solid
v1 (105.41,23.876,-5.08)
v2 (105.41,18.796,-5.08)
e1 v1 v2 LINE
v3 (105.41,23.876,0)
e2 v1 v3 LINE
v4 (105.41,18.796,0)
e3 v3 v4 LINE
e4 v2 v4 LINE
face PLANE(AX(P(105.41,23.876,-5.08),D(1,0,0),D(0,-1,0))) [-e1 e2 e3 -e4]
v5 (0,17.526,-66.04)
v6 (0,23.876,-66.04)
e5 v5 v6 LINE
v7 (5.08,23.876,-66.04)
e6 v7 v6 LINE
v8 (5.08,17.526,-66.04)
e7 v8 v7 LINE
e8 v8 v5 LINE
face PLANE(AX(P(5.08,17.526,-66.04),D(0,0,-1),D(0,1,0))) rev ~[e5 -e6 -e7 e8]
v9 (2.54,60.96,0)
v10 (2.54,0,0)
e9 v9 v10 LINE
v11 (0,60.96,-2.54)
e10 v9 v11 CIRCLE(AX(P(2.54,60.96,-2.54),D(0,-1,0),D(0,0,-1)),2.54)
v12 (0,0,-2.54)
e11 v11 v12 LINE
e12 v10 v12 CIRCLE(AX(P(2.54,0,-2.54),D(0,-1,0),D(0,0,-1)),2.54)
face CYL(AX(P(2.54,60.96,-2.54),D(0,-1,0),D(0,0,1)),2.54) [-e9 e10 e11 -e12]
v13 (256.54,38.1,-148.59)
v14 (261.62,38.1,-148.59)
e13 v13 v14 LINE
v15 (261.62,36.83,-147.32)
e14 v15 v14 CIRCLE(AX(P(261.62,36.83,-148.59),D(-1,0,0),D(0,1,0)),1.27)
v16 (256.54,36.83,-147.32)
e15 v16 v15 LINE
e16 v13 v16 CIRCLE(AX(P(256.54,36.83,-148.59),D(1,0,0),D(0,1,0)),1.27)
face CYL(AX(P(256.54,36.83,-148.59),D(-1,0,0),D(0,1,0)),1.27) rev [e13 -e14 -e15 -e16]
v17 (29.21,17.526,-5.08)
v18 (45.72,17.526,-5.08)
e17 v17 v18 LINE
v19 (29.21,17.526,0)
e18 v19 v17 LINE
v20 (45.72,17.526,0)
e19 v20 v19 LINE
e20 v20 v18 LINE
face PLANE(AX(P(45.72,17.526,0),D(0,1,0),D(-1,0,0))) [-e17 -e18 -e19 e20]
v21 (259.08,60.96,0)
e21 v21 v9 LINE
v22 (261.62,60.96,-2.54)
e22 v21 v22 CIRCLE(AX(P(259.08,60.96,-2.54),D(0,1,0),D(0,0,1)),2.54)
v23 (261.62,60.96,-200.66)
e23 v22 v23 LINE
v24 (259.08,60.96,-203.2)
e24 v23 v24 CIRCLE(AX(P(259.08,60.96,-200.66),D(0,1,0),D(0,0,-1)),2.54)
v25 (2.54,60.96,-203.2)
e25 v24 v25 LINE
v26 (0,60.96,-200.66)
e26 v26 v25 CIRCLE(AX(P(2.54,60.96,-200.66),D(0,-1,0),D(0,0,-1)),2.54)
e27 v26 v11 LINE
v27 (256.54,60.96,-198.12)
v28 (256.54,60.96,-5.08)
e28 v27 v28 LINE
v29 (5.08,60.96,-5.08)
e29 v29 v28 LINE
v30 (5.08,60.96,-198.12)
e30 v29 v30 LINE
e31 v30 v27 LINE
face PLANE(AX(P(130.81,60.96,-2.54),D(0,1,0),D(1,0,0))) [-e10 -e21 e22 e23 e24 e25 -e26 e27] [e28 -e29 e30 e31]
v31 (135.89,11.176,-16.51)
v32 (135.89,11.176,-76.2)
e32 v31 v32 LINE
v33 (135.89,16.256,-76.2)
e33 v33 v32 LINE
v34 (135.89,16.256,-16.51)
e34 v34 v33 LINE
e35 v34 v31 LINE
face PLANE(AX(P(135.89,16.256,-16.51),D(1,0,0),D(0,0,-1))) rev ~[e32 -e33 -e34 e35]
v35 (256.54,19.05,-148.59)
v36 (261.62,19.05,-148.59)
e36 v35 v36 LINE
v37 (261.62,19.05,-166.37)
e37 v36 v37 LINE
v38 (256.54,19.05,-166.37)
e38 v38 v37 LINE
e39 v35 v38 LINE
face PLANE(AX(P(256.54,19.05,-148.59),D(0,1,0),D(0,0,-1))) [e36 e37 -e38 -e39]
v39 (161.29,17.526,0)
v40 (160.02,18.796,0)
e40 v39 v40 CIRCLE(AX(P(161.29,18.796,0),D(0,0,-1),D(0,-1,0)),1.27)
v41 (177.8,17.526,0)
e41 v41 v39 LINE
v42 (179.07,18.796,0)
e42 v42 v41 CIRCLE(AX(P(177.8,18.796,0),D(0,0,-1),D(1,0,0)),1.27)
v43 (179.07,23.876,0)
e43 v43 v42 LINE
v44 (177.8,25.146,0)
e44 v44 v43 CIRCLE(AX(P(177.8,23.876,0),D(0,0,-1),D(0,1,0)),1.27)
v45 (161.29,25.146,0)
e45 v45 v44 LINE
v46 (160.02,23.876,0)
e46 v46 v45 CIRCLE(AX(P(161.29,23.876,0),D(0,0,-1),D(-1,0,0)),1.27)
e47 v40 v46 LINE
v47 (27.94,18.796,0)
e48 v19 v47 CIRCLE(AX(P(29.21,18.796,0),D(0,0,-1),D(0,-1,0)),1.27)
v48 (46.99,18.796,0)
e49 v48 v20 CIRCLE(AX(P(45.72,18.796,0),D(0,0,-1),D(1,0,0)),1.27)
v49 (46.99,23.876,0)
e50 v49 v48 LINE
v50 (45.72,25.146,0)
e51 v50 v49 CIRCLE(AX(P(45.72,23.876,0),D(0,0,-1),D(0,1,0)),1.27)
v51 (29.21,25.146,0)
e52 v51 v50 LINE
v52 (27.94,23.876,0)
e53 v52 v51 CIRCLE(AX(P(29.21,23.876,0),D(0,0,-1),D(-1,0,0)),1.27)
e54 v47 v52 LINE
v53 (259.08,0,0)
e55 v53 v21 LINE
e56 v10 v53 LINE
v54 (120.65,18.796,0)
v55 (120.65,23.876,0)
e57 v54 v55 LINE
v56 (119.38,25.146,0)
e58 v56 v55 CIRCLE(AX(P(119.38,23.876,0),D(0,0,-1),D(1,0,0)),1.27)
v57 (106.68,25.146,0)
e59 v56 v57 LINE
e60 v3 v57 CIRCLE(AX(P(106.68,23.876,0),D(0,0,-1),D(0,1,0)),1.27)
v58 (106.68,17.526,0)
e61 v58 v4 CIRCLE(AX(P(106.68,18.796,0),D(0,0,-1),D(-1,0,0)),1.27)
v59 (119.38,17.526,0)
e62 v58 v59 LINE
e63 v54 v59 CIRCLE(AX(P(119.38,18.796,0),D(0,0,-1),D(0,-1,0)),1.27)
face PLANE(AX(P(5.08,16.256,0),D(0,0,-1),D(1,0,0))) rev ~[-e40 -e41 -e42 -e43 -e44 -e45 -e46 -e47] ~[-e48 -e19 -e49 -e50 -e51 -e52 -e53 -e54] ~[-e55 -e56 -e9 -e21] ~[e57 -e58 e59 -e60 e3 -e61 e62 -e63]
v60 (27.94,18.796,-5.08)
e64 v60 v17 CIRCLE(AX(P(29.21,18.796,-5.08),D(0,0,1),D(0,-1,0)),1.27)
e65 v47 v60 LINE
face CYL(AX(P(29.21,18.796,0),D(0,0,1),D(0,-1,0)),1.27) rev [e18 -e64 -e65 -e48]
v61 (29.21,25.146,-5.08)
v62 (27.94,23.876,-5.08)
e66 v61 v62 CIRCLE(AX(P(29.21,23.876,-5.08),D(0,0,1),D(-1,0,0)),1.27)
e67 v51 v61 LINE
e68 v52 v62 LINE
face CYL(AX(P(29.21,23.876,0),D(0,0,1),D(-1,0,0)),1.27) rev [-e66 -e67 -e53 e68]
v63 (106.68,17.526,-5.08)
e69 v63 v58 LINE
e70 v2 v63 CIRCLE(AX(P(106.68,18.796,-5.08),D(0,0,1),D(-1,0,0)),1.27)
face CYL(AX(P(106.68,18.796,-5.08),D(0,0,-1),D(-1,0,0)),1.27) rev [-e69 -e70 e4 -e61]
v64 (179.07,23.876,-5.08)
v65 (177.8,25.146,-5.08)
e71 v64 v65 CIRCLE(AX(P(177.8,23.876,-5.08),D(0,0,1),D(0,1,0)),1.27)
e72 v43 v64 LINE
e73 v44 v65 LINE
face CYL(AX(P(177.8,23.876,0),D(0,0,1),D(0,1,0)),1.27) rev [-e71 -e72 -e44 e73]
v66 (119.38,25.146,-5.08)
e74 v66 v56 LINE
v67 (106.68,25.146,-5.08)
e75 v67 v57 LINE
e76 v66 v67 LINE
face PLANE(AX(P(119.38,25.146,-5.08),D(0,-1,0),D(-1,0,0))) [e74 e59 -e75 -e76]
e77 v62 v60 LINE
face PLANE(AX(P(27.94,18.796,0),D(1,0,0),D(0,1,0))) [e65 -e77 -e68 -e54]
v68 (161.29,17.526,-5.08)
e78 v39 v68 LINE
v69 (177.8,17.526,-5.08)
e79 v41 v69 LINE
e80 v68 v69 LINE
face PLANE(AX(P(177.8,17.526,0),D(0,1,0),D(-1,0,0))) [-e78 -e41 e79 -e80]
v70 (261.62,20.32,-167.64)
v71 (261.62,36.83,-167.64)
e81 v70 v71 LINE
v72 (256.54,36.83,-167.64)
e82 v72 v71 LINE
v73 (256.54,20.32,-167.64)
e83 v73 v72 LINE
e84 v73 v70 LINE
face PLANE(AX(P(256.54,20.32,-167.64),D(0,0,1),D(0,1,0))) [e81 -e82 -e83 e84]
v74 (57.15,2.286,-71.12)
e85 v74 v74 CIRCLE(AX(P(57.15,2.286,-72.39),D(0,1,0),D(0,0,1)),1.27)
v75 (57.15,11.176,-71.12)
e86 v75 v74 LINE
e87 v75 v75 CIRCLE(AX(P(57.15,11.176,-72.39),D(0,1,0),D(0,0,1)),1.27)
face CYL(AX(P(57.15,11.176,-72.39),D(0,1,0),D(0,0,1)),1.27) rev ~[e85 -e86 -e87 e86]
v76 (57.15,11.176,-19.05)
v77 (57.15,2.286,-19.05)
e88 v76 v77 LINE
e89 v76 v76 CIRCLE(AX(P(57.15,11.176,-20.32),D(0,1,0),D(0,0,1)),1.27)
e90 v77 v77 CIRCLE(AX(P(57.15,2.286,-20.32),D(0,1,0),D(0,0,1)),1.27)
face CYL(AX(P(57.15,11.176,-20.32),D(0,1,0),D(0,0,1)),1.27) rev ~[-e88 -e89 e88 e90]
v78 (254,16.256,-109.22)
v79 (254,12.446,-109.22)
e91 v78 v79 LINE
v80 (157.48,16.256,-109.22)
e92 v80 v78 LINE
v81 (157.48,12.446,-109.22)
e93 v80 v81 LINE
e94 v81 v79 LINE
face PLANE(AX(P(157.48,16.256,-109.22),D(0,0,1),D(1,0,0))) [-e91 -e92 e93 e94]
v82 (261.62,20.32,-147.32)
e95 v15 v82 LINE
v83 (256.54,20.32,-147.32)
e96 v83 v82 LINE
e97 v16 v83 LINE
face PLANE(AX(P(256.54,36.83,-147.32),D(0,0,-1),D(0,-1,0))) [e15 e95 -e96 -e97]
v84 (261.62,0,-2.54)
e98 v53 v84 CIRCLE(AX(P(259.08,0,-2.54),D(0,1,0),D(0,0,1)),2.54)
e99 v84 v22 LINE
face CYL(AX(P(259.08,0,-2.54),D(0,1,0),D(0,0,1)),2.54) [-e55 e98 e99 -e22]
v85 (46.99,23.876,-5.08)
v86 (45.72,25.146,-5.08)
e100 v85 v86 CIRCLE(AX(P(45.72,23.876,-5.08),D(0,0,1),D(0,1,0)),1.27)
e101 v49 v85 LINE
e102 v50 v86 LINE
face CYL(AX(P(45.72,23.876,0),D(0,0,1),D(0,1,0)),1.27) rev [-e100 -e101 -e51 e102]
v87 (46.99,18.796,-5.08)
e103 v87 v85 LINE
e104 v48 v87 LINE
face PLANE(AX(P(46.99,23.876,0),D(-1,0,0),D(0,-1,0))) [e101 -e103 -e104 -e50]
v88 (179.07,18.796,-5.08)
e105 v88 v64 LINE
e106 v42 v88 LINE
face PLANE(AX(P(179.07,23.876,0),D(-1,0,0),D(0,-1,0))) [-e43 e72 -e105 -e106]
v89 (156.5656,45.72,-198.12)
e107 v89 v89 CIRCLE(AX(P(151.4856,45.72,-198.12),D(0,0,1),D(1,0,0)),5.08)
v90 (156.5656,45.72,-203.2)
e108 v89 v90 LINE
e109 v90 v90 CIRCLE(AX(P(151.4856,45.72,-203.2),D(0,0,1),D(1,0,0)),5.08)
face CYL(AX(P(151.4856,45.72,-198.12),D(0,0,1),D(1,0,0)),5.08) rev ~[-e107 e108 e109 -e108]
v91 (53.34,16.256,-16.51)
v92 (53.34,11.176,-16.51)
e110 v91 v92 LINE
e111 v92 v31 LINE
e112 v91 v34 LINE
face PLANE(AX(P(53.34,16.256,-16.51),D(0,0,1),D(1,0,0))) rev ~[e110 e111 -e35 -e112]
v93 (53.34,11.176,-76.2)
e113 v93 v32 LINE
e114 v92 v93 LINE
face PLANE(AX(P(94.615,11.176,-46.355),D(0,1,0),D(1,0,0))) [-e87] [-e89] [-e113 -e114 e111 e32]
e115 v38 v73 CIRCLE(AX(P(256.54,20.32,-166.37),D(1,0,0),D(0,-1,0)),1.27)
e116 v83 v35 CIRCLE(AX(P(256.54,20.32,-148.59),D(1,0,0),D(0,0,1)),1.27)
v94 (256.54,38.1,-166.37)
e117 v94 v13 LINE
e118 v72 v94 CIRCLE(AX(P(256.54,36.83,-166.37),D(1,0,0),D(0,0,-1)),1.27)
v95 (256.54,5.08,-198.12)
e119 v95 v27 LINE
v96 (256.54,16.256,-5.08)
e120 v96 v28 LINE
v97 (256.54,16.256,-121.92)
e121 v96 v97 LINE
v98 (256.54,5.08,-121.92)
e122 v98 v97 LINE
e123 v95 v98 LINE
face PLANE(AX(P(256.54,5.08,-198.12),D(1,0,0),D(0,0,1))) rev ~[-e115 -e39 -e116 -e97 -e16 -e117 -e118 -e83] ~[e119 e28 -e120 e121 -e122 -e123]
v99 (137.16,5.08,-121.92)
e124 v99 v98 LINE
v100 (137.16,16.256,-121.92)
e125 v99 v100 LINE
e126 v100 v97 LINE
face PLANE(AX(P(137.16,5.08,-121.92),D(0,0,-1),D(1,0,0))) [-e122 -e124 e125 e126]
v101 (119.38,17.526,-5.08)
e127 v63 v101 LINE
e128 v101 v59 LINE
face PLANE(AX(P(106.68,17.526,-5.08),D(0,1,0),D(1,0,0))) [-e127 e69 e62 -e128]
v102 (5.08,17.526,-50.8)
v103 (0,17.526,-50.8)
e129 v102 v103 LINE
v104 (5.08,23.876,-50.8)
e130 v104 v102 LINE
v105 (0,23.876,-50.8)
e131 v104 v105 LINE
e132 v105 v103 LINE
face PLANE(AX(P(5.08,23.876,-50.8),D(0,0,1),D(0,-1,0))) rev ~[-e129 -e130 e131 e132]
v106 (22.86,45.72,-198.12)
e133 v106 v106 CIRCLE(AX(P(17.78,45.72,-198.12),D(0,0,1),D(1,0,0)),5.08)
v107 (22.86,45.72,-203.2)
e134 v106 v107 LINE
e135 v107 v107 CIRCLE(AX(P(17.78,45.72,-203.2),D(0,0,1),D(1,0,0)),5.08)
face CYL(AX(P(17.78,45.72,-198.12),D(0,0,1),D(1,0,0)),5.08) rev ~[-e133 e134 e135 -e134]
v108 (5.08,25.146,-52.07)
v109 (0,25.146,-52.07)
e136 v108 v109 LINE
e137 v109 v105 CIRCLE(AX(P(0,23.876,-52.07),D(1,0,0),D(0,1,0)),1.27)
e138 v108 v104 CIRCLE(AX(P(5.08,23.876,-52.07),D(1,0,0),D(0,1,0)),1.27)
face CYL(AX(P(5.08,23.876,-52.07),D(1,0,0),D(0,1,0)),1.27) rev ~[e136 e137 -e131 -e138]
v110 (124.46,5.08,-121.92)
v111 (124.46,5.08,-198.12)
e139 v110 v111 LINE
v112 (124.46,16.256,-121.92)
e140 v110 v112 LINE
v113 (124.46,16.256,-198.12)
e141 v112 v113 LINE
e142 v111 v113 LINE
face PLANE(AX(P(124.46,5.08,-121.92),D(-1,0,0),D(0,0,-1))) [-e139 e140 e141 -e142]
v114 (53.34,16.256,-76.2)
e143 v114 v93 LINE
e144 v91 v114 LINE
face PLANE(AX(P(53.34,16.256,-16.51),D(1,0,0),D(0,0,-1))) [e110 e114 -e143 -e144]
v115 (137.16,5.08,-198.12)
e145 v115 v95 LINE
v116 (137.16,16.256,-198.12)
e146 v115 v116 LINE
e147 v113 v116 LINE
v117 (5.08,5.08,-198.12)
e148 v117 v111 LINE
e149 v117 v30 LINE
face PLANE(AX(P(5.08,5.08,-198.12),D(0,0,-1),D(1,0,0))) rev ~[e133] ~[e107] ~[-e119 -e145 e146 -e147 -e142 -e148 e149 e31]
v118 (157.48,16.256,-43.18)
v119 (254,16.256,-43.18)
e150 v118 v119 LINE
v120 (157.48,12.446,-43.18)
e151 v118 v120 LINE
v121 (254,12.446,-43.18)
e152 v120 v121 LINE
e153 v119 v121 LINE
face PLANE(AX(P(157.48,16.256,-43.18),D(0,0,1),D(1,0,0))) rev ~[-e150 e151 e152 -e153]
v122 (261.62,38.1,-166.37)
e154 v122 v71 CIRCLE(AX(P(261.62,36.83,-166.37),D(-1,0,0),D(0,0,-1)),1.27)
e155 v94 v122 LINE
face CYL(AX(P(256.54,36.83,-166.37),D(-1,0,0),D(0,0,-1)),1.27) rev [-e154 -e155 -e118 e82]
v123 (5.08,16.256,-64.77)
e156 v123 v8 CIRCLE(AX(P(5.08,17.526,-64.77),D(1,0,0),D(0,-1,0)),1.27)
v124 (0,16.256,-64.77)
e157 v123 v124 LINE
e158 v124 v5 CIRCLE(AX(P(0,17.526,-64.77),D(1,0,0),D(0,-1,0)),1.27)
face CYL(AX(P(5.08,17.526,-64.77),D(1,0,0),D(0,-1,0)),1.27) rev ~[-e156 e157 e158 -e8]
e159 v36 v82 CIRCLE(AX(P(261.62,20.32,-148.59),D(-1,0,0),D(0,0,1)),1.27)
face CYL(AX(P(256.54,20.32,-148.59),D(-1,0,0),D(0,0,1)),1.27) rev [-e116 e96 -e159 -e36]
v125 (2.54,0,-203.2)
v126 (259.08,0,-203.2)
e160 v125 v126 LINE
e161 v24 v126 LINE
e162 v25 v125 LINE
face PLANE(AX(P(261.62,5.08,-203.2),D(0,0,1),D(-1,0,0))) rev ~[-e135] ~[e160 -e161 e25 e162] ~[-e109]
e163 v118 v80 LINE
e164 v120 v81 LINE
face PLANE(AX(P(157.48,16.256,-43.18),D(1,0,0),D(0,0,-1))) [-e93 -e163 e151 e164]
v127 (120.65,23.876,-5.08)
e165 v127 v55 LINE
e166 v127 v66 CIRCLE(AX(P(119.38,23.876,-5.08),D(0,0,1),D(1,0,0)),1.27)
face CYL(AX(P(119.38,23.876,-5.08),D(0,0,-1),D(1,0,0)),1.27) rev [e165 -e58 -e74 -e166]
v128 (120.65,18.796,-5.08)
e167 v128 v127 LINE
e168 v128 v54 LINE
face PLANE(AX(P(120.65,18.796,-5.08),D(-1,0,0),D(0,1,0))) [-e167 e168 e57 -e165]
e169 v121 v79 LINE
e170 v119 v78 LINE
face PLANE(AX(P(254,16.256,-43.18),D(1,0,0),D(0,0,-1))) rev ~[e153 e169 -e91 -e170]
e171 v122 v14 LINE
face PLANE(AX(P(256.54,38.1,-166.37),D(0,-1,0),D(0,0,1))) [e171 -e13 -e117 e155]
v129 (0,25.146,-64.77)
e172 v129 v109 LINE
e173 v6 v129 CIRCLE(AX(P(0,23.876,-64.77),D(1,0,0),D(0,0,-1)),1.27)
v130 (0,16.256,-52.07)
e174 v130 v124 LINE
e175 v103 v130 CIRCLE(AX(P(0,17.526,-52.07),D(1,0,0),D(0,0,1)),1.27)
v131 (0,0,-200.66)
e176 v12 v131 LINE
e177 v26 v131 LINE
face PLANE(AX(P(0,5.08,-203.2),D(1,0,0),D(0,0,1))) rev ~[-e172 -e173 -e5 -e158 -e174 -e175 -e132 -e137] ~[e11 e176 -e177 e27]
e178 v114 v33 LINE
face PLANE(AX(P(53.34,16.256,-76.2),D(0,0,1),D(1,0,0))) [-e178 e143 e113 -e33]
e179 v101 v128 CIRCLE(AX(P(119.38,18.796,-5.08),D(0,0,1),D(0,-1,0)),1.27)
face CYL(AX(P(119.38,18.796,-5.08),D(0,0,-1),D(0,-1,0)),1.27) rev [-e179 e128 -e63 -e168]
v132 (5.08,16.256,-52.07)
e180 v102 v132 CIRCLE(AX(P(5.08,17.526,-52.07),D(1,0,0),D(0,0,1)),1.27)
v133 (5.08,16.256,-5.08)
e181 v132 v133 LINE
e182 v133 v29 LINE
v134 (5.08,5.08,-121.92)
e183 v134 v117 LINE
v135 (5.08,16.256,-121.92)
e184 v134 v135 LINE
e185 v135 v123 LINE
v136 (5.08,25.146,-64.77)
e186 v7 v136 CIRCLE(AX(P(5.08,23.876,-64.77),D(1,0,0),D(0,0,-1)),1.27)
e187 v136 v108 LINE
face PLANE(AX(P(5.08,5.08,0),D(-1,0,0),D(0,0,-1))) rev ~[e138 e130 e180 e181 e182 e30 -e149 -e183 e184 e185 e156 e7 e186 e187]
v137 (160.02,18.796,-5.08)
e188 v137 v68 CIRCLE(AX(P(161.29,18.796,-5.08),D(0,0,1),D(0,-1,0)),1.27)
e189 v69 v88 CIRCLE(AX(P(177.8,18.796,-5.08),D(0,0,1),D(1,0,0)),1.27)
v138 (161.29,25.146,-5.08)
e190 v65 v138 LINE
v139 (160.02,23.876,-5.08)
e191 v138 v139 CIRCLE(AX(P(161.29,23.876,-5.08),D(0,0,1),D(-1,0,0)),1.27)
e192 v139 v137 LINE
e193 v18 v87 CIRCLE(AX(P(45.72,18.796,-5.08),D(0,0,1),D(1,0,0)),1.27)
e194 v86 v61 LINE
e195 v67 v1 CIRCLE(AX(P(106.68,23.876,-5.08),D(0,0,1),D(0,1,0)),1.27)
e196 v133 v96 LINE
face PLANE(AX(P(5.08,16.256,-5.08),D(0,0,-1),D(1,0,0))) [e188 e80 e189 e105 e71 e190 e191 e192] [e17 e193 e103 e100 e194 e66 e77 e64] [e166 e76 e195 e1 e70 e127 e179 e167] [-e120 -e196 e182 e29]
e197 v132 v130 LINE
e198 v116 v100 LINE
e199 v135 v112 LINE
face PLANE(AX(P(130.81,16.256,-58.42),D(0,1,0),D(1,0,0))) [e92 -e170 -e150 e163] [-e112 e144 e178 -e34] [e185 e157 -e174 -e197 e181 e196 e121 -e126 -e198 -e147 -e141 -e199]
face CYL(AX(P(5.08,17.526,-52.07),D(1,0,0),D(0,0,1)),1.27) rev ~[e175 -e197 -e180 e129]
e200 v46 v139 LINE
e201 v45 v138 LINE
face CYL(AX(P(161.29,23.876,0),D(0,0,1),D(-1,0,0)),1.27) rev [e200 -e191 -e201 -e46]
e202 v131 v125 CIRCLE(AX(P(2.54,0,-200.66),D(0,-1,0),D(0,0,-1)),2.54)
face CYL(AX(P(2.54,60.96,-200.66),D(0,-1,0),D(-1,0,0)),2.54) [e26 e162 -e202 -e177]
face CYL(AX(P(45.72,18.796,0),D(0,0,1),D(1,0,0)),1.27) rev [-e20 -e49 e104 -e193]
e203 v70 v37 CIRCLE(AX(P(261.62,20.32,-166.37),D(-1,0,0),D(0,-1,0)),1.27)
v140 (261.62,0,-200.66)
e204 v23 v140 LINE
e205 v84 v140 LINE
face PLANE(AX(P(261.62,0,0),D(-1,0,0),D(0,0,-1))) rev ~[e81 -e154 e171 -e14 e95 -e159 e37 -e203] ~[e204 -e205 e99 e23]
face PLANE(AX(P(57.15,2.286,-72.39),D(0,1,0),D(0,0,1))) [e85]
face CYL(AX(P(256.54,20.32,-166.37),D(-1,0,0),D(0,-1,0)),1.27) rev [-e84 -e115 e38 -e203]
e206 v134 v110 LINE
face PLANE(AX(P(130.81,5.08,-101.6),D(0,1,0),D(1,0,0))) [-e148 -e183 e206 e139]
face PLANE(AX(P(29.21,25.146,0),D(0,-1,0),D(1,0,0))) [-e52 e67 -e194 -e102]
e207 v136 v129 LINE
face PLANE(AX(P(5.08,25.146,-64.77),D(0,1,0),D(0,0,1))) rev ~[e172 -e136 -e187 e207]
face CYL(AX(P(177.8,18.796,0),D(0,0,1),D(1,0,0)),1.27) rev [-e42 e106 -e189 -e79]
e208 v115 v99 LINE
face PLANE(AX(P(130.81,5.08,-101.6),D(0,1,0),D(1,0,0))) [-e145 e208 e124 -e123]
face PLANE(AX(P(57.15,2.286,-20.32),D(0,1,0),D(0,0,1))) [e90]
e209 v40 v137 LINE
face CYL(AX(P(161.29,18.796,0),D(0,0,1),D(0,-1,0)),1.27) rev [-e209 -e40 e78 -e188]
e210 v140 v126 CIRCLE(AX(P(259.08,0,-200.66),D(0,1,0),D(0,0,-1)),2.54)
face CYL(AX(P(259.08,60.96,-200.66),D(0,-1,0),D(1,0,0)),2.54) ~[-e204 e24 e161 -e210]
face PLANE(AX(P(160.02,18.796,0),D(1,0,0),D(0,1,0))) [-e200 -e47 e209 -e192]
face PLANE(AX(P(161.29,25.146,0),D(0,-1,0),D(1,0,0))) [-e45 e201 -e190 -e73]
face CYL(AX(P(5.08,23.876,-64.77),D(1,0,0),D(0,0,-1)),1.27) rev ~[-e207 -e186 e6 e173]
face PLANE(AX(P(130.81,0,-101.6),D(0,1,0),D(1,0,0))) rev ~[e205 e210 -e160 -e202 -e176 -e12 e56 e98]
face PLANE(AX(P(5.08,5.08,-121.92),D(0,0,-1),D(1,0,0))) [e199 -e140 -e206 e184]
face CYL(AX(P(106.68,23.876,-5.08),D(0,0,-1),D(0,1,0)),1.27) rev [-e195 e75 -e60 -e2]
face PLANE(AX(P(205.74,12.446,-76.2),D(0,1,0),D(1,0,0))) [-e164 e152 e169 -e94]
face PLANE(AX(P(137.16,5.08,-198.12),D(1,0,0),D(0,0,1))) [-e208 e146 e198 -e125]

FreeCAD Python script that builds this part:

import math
import FreeCAD as App
import Part
import Sketcher
Q = App.Units.Quantity


def edges_at(feature, points):
    """Names of the edges that pass closest to the given points."""
    edges = feature.Shape.Edges
    near = lambda p: min(range(len(edges)), key=lambda i: edges[i].distToShape(Part.Vertex(*p))[0])
    return sorted({f"Edge{near(p) + 1}" for p in points})


def add_polygon(sketch, points):
    """Adds a closed chain of lines whose ends are joined by coincident constraints."""
    first, n = sketch.GeometryCount, len(points)
    for a, b in zip(points, points[1:] + points[:1]):
        sketch.addGeometry(Part.LineSegment(App.Vector(*a, 0), App.Vector(*b, 0)), False)
    for i in range(n):
        sketch.addConstraint(Sketcher.Constraint("Coincident", first + i, 2, first + (i + 1) % n, 1))

doc = App.newDocument("Part")
body = doc.addObject("PartDesign::Body", "Body")

sketch1 = body.newObject("Sketcher::SketchObject", "Sketch")
sketch1.AttachmentSupport = (doc.getObject("XZ_Plane"), [""])
sketch1.MapMode = "FlatFace"
add_polygon(sketch1, [(0, -203.2), (0, 0), (261.62, 0), (261.62, -203.2)])
sketch1.addConstraint(Sketcher.Constraint("Vertical", 0))
sketch1.addConstraint(Sketcher.Constraint("Horizontal", 1))
sketch1.addConstraint(Sketcher.Constraint("Vertical", 2))
sketch1.addConstraint(Sketcher.Constraint("Horizontal", 3))
sketch1.addConstraint(Sketcher.Constraint("Coincident", 0, 2, -1, 1))
sketch1.addConstraint(Sketcher.Constraint("DistanceY", 0, 1, 0, 2, Q("8 in")))
sketch1.addConstraint(Sketcher.Constraint("DistanceX", 1, 1, 1, 2, Q("10.3 in")))
pad1 = body.newObject("PartDesign::Pad", "Pad")
pad1.Profile = sketch1
pad1.Length = Q("0.2 in")
pad1.Reversed = True

sketch2 = body.newObject("Sketcher::SketchObject", "Sketch001")
sketch2.AttachmentSupport = (doc.getObject("XZ_Plane"), [""])
sketch2.MapMode = "FlatFace"
sketch2.AttachmentOffset = App.Placement(App.Vector(0, 0, -0.2 * 25.4), App.Rotation())
add_polygon(sketch2, [(0, 0), (5.08, 0), (5.08, -198.12), (256.54, -198.12), (256.54, 0), (261.62, 0), (261.62, -203.2), (0, -203.2)])
sketch2.addConstraint(Sketcher.Constraint("Horizontal", 0))
sketch2.addConstraint(Sketcher.Constraint("Vertical", 1))
sketch2.addConstraint(Sketcher.Constraint("Horizontal", 2))
sketch2.addConstraint(Sketcher.Constraint("Vertical", 3))
sketch2.addConstraint(Sketcher.Constraint("Horizontal", 4))
sketch2.addConstraint(Sketcher.Constraint("Vertical", 5))
sketch2.addConstraint(Sketcher.Constraint("Horizontal", 6))
sketch2.addConstraint(Sketcher.Constraint("Vertical", 7))
sketch2.addConstraint(Sketcher.Constraint("Coincident", 7, 2, -1, 1))
sketch2.addConstraint(Sketcher.Constraint("PointOnObject", 3, 2, -1))
sketch2.addConstraint(Sketcher.Constraint("Equal", 0, 4))
sketch2.addConstraint(Sketcher.Constraint("DistanceY", 5, 2, 5, 1, Q("8 in")))
sketch2.addConstraint(Sketcher.Constraint("DistanceX", 0, 1, 0, 2, Q("0.2 in")))
sketch2.addConstraint(Sketcher.Constraint("DistanceX", 2, 1, 2, 2, Q("9.9 in")))
sketch2.addConstraint(Sketcher.Constraint("DistanceY", 1, 2, 1, 1, Q("7.8 in")))
pad2 = body.newObject("PartDesign::Pad", "Pad001")
pad2.Profile = sketch2
pad2.Length = Q("2.2 in")
pad2.Reversed = True

sketch3 = body.newObject("Sketcher::SketchObject", "Sketch002")
sketch3.AttachmentSupport = (doc.getObject("XZ_Plane"), [""])
sketch3.MapMode = "FlatFace"
sketch3.AttachmentOffset = App.Placement(App.Vector(0, 0, -0.2 * 25.4), App.Rotation())
add_polygon(sketch3, [(124.46, -121.92), (5.08, -121.92), (5.08, -116.84), (256.54, -116.84), (256.54, -121.92), (137.16, -121.92), (137.16, -198.12), (124.46, -198.12)])
sketch3.addConstraint(Sketcher.Constraint("Horizontal", 0))
sketch3.addConstraint(Sketcher.Constraint("Vertical", 1))
sketch3.addConstraint(Sketcher.Constraint("Horizontal", 2))
sketch3.addConstraint(Sketcher.Constraint("Vertical", 3))
sketch3.addConstraint(Sketcher.Constraint("Horizontal", 4))
sketch3.addConstraint(Sketcher.Constraint("Vertical", 5))
sketch3.addConstraint(Sketcher.Constraint("Horizontal", 6))
sketch3.addConstraint(Sketcher.Constraint("Vertical", 7))
sketch3.addConstraint(Sketcher.Constraint("Horizontal", 0, 2, 3, 2))
sketch3.addConstraint(Sketcher.Constraint("Equal", 0, 4))
sketch3.addConstraint(Sketcher.Constraint("DistanceY", 5, 2, 5, 1, Q("3 in")))
sketch3.addConstraint(Sketcher.Constraint("DistanceX", 0, 2, 0, 1, Q("4.7 in")))
sketch3.addConstraint(Sketcher.Constraint("DistanceX", 2, 1, 2, 2, Q("9.9 in")))
sketch3.addConstraint(Sketcher.Constraint("DistanceY", 1, 1, 1, 2, Q("0.2 in")))
sketch3.addConstraint(Sketcher.Constraint("DistanceX", -1, 1, 0, 2, Q("0.2 in")))
sketch3.addConstraint(Sketcher.Constraint("DistanceY", 0, 2, -1, 1, Q("4.8 in")))
pad3 = body.newObject("PartDesign::Pad", "Pad002")
pad3.Profile = sketch3
pad3.Length = Q("0.44 in")
pad3.Reversed = True

sketch4 = body.newObject("Sketcher::SketchObject", "Sketch003")
sketch4.AttachmentSupport = (doc.getObject("XZ_Plane"), [""])
sketch4.MapMode = "FlatFace"
sketch4.AttachmentOffset = App.Placement(App.Vector(0, 0, -0.2 * 25.4), App.Rotation())
add_polygon(sketch4, [(5.08, -116.84), (5.08, 0), (256.54, 0), (256.54, -116.84)])
sketch4.addConstraint(Sketcher.Constraint("Vertical", 0))
sketch4.addConstraint(Sketcher.Constraint("Horizontal", 1))
sketch4.addConstraint(Sketcher.Constraint("Vertical", 2))
sketch4.addConstraint(Sketcher.Constraint("Horizontal", 3))
sketch4.addConstraint(Sketcher.Constraint("PointOnObject", 0, 2, -1))
sketch4.addConstraint(Sketcher.Constraint("DistanceX", 1, 1, 1, 2, Q("9.9 in")))
sketch4.addConstraint(Sketcher.Constraint("DistanceY", 0, 1, 0, 2, Q("4.6 in")))
sketch4.addConstraint(Sketcher.Constraint("DistanceX", -1, 1, 0, 2, Q("0.2 in")))
pad4 = body.newObject("PartDesign::Pad", "Pad003")
pad4.Profile = sketch4
pad4.Length = Q("0.44 in")
pad4.Reversed = True

sketch5 = body.newObject("Sketcher::SketchObject", "Sketch004")
sketch5.AttachmentSupport = (doc.getObject("XY_Plane"), [""])
sketch5.MapMode = "FlatFace"
sketch5.AttachmentOffset = App.Placement(App.Vector(0, 0, -7.8 * 25.4), App.Rotation())
sketch5.addGeometry(Part.Circle(App.Vector(17.78, 45.72, 0), App.Vector(0, 0, 1), 5.08), False)
sketch5.addGeometry(Part.Circle(App.Vector(151.4856, 45.72, 0), App.Vector(0, 0, 1), 5.08), False)
sketch5.addConstraint(Sketcher.Constraint("Equal", 0, 1))
sketch5.addConstraint(Sketcher.Constraint("Horizontal", 0, 3, 1, 3))
sketch5.addConstraint(Sketcher.Constraint("Diameter", 0, Q("0.4 in")))
sketch5.addConstraint(Sketcher.Constraint("DistanceX", -1, 1, 0, 3, Q("0.7 in")))
sketch5.addConstraint(Sketcher.Constraint("DistanceY", -1, 1, 0, 3, Q("1.8 in")))
sketch5.addConstraint(Sketcher.Constraint("DistanceX", -1, 1, 1, 3, Q("5.964 in")))
pocket1 = body.newObject("PartDesign::Pocket", "Pocket")
pocket1.Profile = sketch5
pocket1.Length = Q("0.44 in")

sketch6 = body.newObject("Sketcher::SketchObject", "Sketch005")
sketch6.AttachmentSupport = (doc.getObject("YZ_Plane"), [""])
sketch6.MapMode = "FlatFace"
sketch6.AttachmentOffset = App.Placement(App.Vector(0, 0, 0.2 * 25.4), App.Rotation())
sketch6.addGeometry(Part.LineSegment(App.Vector(16.256, -52.07, 0), App.Vector(16.256, -64.77, 0)), False)
sketch6.addGeometry(Part.ArcOfCircle(Part.Circle(App.Vector(17.526, -64.77, 0), App.Vector(0, 0, 1), 1.27), math.radians(180), math.radians(270)), False)
sketch6.addGeometry(Part.LineSegment(App.Vector(17.526, -66.04, 0), App.Vector(23.876, -66.04, 0)), False)
sketch6.addGeometry(Part.ArcOfCircle(Part.Circle(App.Vector(23.876, -64.77, 0), App.Vector(0, 0, 1), 1.27), math.radians(-90), math.radians(0)), False)
sketch6.addGeometry(Part.LineSegment(App.Vector(25.146, -64.77, 0), App.Vector(25.146, -52.07, 0)), False)
sketch6.addGeometry(Part.ArcOfCircle(Part.Circle(App.Vector(23.876, -52.07, 0), App.Vector(0, 0, 1), 1.27), math.radians(0), math.radians(90)), False)
sketch6.addGeometry(Part.LineSegment(App.Vector(23.876, -50.8, 0), App.Vector(17.526, -50.8, 0)), False)
sketch6.addGeometry(Part.ArcOfCircle(Part.Circle(App.Vector(17.526, -52.07, 0), App.Vector(0, 0, 1), 1.27), math.radians(90), math.radians(180)), False)
sketch6.addConstraint(Sketcher.Constraint("Tangent", 0, 2, 1, 1))
sketch6.addConstraint(Sketcher.Constraint("Tangent", 1, 2, 2, 1))
sketch6.addConstraint(Sketcher.Constraint("Tangent", 2, 2, 3, 1))
sketch6.addConstraint(Sketcher.Constraint("Tangent", 3, 2, 4, 1))
sketch6.addConstraint(Sketcher.Constraint("Tangent", 4, 2, 5, 1))
sketch6.addConstraint(Sketcher.Constraint("Tangent", 5, 2, 6, 1))
sketch6.addConstraint(Sketcher.Constraint("Tangent", 6, 2, 7, 1))
sketch6.addConstraint(Sketcher.Constraint("Tangent", 7, 2, 0, 1))
sketch6.addConstraint(Sketcher.Constraint("Vertical", 0))
sketch6.addConstraint(Sketcher.Constraint("Horizontal", 2))
sketch6.addConstraint(Sketcher.Constraint("Vertical", 4))
sketch6.addConstraint(Sketcher.Constraint("Horizontal", 6))
sketch6.addConstraint(Sketcher.Constraint("Equal", 1, 3))
sketch6.addConstraint(Sketcher.Constraint("Equal", 3, 5))
sketch6.addConstraint(Sketcher.Constraint("Equal", 5, 7))
sketch6.addConstraint(Sketcher.Constraint("Radius", 1, Q("0.05 in")))
sketch6.addConstraint(Sketcher.Constraint("DistanceY", 0, 2, 0, 1, Q("0.5 in")))
sketch6.addConstraint(Sketcher.Constraint("DistanceY", 5, 2, -1, 1, Q("2 in")))
sketch6.addConstraint(Sketcher.Constraint("DistanceX", 2, 1, 2, 2, Q("0.25 in")))
sketch6.addConstraint(Sketcher.Constraint("DistanceX", -1, 1, 1, 3, Q("0.69 in")))
pocket2 = body.newObject("PartDesign::Pocket", "Pocket001")
pocket2.Profile = sketch6
pocket2.Length = Q("0.44 in")

sketch7 = body.newObject("Sketcher::SketchObject", "Sketch006")
sketch7.AttachmentSupport = (doc.getObject("XZ_Plane"), [""])
sketch7.MapMode = "FlatFace"
sketch7.AttachmentOffset = App.Placement(App.Vector(0, 0, -0.64 * 25.4), App.Rotation())
add_polygon(sketch7, [(53.34, -76.2), (53.34, -16.51), (135.89, -16.51), (135.89, -76.2)])
sketch7.addConstraint(Sketcher.Constraint("Vertical", 0))
sketch7.addConstraint(Sketcher.Constraint("Horizontal", 1))
sketch7.addConstraint(Sketcher.Constraint("Vertical", 2))
sketch7.addConstraint(Sketcher.Constraint("Horizontal", 3))
sketch7.addConstraint(Sketcher.Constraint("DistanceY", 2, 2, -1, 1, Q("3 in")))
sketch7.addConstraint(Sketcher.Constraint("DistanceX", 1, 1, 1, 2, Q("3.25 in")))
sketch7.addConstraint(Sketcher.Constraint("DistanceY", 0, 1, 0, 2, Q("2.35 in")))
sketch7.addConstraint(Sketcher.Constraint("DistanceX", -1, 1, 0, 2, Q("2.1 in")))
pocket3 = body.newObject("PartDesign::Pocket", "Pocket002")
pocket3.Profile = sketch7
pocket3.Length = Q("0.2 in")
pocket3.Reversed = True

sketch8 = body.newObject("Sketcher::SketchObject", "Sketch007")
sketch8.AttachmentSupport = (doc.getObject("XZ_Plane"), [""])
sketch8.MapMode = "FlatFace"
sketch8.AttachmentOffset = App.Placement(App.Vector(0, 0, -0.44 * 25.4), App.Rotation())
sketch8.addGeometry(Part.Circle(App.Vector(57.15, -72.39, 0), App.Vector(0, 0, 1), 1.27), False)
sketch8.addGeometry(Part.Circle(App.Vector(57.15, -20.32, 0), App.Vector(0, 0, 1), 1.27), False)
sketch8.addConstraint(Sketcher.Constraint("Equal", 0, 1))
sketch8.addConstraint(Sketcher.Constraint("Vertical", 0, 3, 1, 3))
sketch8.addConstraint(Sketcher.Constraint("Diameter", 0, Q("0.1 in")))
sketch8.addConstraint(Sketcher.Constraint("DistanceY", 1, 3, -1, 1, Q("0.8 in")))
sketch8.addConstraint(Sketcher.Constraint("DistanceX", -1, 1, 0, 3, Q("2.25 in")))
sketch8.addConstraint(Sketcher.Constraint("DistanceY", 0, 3, -1, 1, Q("2.85 in")))
pocket4 = body.newObject("PartDesign::Pocket", "Pocket003")
pocket4.Profile = sketch8
pocket4.Length = Q("0.35 in")
pocket4.Reversed = True

sketch9 = body.newObject("Sketcher::SketchObject", "Sketch008")
sketch9.AttachmentSupport = (doc.getObject("XZ_Plane"), [""])
sketch9.MapMode = "FlatFace"
sketch9.AttachmentOffset = App.Placement(App.Vector(0, 0, -0.64 * 25.4), App.Rotation())
add_polygon(sketch9, [(157.48, -109.22), (157.48, -43.18), (254, -43.18), (254, -109.22)])
sketch9.addConstraint(Sketcher.Constraint("Vertical", 0))
sketch9.addConstraint(Sketcher.Constraint("Horizontal", 1))
sketch9.addConstraint(Sketcher.Constraint("Vertical", 2))
sketch9.addConstraint(Sketcher.Constraint("Horizontal", 3))
sketch9.addConstraint(Sketcher.Constraint("DistanceX", 1, 1, 1, 2, Q("3.8 in")))
sketch9.addConstraint(Sketcher.Constraint("DistanceY", 0, 1, 0, 2, Q("2.6 in")))
sketch9.addConstraint(Sketcher.Constraint("DistanceX", -1, 1, 1, 2, Q("10 in")))
sketch9.addConstraint(Sketcher.Constraint("DistanceY", 0, 2, -1, 1, Q("1.7 in")))
pocket5 = body.newObject("PartDesign::Pocket", "Pocket004")
pocket5.Profile = sketch9
pocket5.Length = Q("0.15 in")
pocket5.Reversed = True

sketch10 = body.newObject("Sketcher::SketchObject", "Sketch009")
sketch10.AttachmentSupport = (doc.getObject("XZ_Plane"), [""])
sketch10.MapMode = "FlatFace"
sketch10.AttachmentOffset = App.Placement(App.Vector(0, 0, -0.64 * 25.4), App.Rotation())
add_polygon(sketch10, [(5.08, -5.08), (5.08, 0), (256.54, 0), (256.54, -5.08)])
sketch10.addConstraint(Sketcher.Constraint("Vertical", 0))
sketch10.addConstraint(Sketcher.Constraint("Horizontal", 1))
sketch10.addConstraint(Sketcher.Constraint("Vertical", 2))
sketch10.addConstraint(Sketcher.Constraint("Horizontal", 3))
sketch10.addConstraint(Sketcher.Constraint("PointOnObject", 0, 2, -1))
sketch10.addConstraint(Sketcher.Constraint("DistanceX", 1, 1, 1, 2, Q("9.9 in")))
sketch10.addConstraint(Sketcher.Constraint("DistanceY", 0, 1, 0, 2, Q("0.2 in")))
sketch10.addConstraint(Sketcher.Constraint("DistanceX", -1, 1, 0, 2, Q("0.2 in")))
pad5 = body.newObject("PartDesign::Pad", "Pad004")
pad5.Profile = sketch10
pad5.Length = Q("1.76 in")
pad5.Reversed = True

sketch11 = body.newObject("Sketcher::SketchObject", "Sketch010")
sketch11.AttachmentSupport = (doc.getObject("XY_Plane"), [""])
sketch11.MapMode = "FlatFace"
sketch11.AttachmentOffset = App.Placement(App.Vector(0, 0, -0.2 * 25.4), App.Rotation())
sketch11.addGeometry(Part.LineSegment(App.Vector(119.38, 17.526, 0), App.Vector(106.68, 17.526, 0)), False)
sketch11.addGeometry(Part.ArcOfCircle(Part.Circle(App.Vector(106.68, 18.796, 0), App.Vector(0, 0, 1), 1.27), math.radians(180), math.radians(270)), False)
sketch11.addGeometry(Part.LineSegment(App.Vector(105.41, 18.796, 0), App.Vector(105.41, 23.876, 0)), False)
sketch11.addGeometry(Part.ArcOfCircle(Part.Circle(App.Vector(106.68, 23.876, 0), App.Vector(0, 0, 1), 1.27), math.radians(90), math.radians(180)), False)
sketch11.addGeometry(Part.LineSegment(App.Vector(106.68, 25.146, 0), App.Vector(119.38, 25.146, 0)), False)
sketch11.addGeometry(Part.ArcOfCircle(Part.Circle(App.Vector(119.38, 23.876, 0), App.Vector(0, 0, 1), 1.27), math.radians(0), math.radians(90)), False)
sketch11.addGeometry(Part.LineSegment(App.Vector(120.65, 23.876, 0), App.Vector(120.65, 18.796, 0)), False)
sketch11.addGeometry(Part.ArcOfCircle(Part.Circle(App.Vector(119.38, 18.796, 0), App.Vector(0, 0, 1), 1.27), math.radians(-90), math.radians(0)), False)
sketch11.addConstraint(Sketcher.Constraint("Tangent", 0, 2, 1, 2))
sketch11.addConstraint(Sketcher.Constraint("Tangent", 1, 1, 2, 1))
sketch11.addConstraint(Sketcher.Constraint("Tangent", 2, 2, 3, 2))
sketch11.addConstraint(Sketcher.Constraint("Tangent", 3, 1, 4, 1))
sketch11.addConstraint(Sketcher.Constraint("Tangent", 4, 2, 5, 2))
sketch11.addConstraint(Sketcher.Constraint("Tangent", 5, 1, 6, 1))
sketch11.addConstraint(Sketcher.Constraint("Tangent", 6, 2, 7, 2))
sketch11.addConstraint(Sketcher.Constraint("Tangent", 7, 1, 0, 1))
sketch11.addConstraint(Sketcher.Constraint("Horizontal", 0))
sketch11.addConstraint(Sketcher.Constraint("Vertical", 2))
sketch11.addConstraint(Sketcher.Constraint("Horizontal", 4))
sketch11.addConstraint(Sketcher.Constraint("Vertical", 6))
sketch11.addConstraint(Sketcher.Constraint("Equal", 1, 3))
sketch11.addConstraint(Sketcher.Constraint("Equal", 3, 5))
sketch11.addConstraint(Sketcher.Constraint("Equal", 5, 7))
sketch11.addConstraint(Sketcher.Constraint("Radius", 1, Q("0.05 in")))
sketch11.addConstraint(Sketcher.Constraint("DistanceX", 0, 2, 0, 1, Q("0.5 in")))
sketch11.addConstraint(Sketcher.Constraint("DistanceY", 2, 1, 2, 2, Q("0.2 in")))
sketch11.addConstraint(Sketcher.Constraint("DistanceX", -1, 1, 1, 3, Q("4.2 in")))
sketch11.addConstraint(Sketcher.Constraint("DistanceY", -1, 1, 1, 3, Q("0.74 in")))
pocket6 = body.newObject("PartDesign::Pocket", "Pocket005")
pocket6.Profile = sketch11
pocket6.Length = Q("1.56 in")
pocket6.Reversed = True

sketch12 = body.newObject("Sketcher::SketchObject", "Sketch011")
sketch12.AttachmentSupport = (doc.getObject("XY_Plane"), [""])
sketch12.MapMode = "FlatFace"
sketch12.addGeometry(Part.LineSegment(App.Vector(177.8, 25.146, 0), App.Vector(161.29, 25.146, 0)), False)
sketch12.addGeometry(Part.ArcOfCircle(Part.Circle(App.Vector(161.29, 23.876, 0), App.Vector(0, 0, 1), 1.27), math.radians(90), math.radians(180)), False)
sketch12.addGeometry(Part.LineSegment(App.Vector(160.02, 23.876, 0), App.Vector(160.02, 18.796, 0)), False)
sketch12.addGeometry(Part.ArcOfCircle(Part.Circle(App.Vector(161.29, 18.796, 0), App.Vector(0, 0, 1), 1.27), math.radians(180), math.radians(270)), False)
sketch12.addGeometry(Part.LineSegment(App.Vector(161.29, 17.526, 0), App.Vector(177.8, 17.526, 0)), False)
sketch12.addGeometry(Part.ArcOfCircle(Part.Circle(App.Vector(177.8, 18.796, 0), App.Vector(0, 0, 1), 1.27), math.radians(-90), math.radians(0)), False)
sketch12.addGeometry(Part.LineSegment(App.Vector(179.07, 18.796, 0), App.Vector(179.07, 23.876, 0)), False)
sketch12.addGeometry(Part.ArcOfCircle(Part.Circle(App.Vector(177.8, 23.876, 0), App.Vector(0, 0, 1), 1.27), math.radians(0), math.radians(90)), False)
sketch12.addGeometry(Part.LineSegment(App.Vector(45.72, 25.146, 0), App.Vector(29.21, 25.146, 0)), False)
sketch12.addGeometry(Part.ArcOfCircle(Part.Circle(App.Vector(29.21, 23.876, 0), App.Vector(0, 0, 1), 1.27), math.radians(90), math.radians(180)), False)
sketch12.addGeometry(Part.LineSegment(App.Vector(27.94, 23.876, 0), App.Vector(27.94, 18.796, 0)), False)
sketch12.addGeometry(Part.ArcOfCircle(Part.Circle(App.Vector(29.21, 18.796, 0), App.Vector(0, 0, 1), 1.27), math.radians(180), math.radians(270)), False)
sketch12.addGeometry(Part.LineSegment(App.Vector(29.21, 17.526, 0), App.Vector(45.72, 17.526, 0)), False)
sketch12.addGeometry(Part.ArcOfCircle(Part.Circle(App.Vector(45.72, 18.796, 0), App.Vector(0, 0, 1), 1.27), math.radians(-90), math.radians(0)), False)
sketch12.addGeometry(Part.LineSegment(App.Vector(46.99, 18.796, 0), App.Vector(46.99, 23.876, 0)), False)
sketch12.addGeometry(Part.ArcOfCircle(Part.Circle(App.Vector(45.72, 23.876, 0), App.Vector(0, 0, 1), 1.27), math.radians(0), math.radians(90)), False)
sketch12.addConstraint(Sketcher.Constraint("Tangent", 0, 2, 1, 1))
sketch12.addConstraint(Sketcher.Constraint("Tangent", 1, 2, 2, 1))
sketch12.addConstraint(Sketcher.Constraint("Tangent", 2, 2, 3, 1))
sketch12.addConstraint(Sketcher.Constraint("Tangent", 3, 2, 4, 1))
sketch12.addConstraint(Sketcher.Constraint("Tangent", 4, 2, 5, 1))
sketch12.addConstraint(Sketcher.Constraint("Tangent", 5, 2, 6, 1))
sketch12.addConstraint(Sketcher.Constraint("Tangent", 6, 2, 7, 1))
sketch12.addConstraint(Sketcher.Constraint("Tangent", 7, 2, 0, 1))
sketch12.addConstraint(Sketcher.Constraint("Tangent", 8, 2, 9, 1))
sketch12.addConstraint(Sketcher.Constraint("Tangent", 9, 2, 10, 1))
sketch12.addConstraint(Sketcher.Constraint("Tangent", 10, 2, 11, 1))
sketch12.addConstraint(Sketcher.Constraint("Tangent", 11, 2, 12, 1))
sketch12.addConstraint(Sketcher.Constraint("Tangent", 12, 2, 13, 1))
sketch12.addConstraint(Sketcher.Constraint("Tangent", 13, 2, 14, 1))
sketch12.addConstraint(Sketcher.Constraint("Tangent", 14, 2, 15, 1))
sketch12.addConstraint(Sketcher.Constraint("Tangent", 15, 2, 8, 1))
sketch12.addConstraint(Sketcher.Constraint("Horizontal", 0))
sketch12.addConstraint(Sketcher.Constraint("Vertical", 2))
sketch12.addConstraint(Sketcher.Constraint("Horizontal", 4))
sketch12.addConstraint(Sketcher.Constraint("Vertical", 6))
sketch12.addConstraint(Sketcher.Constraint("Horizontal", 8))
sketch12.addConstraint(Sketcher.Constraint("Vertical", 10))
sketch12.addConstraint(Sketcher.Constraint("Horizontal", 12))
sketch12.addConstraint(Sketcher.Constraint("Vertical", 14))
sketch12.addConstraint(Sketcher.Constraint("Equal", 1, 3))
sketch12.addConstraint(Sketcher.Constraint("Equal", 3, 5))
sketch12.addConstraint(Sketcher.Constraint("Equal", 5, 7))
sketch12.addConstraint(Sketcher.Constraint("Equal", 7, 9))
sketch12.addConstraint(Sketcher.Constraint("Equal", 9, 11))
sketch12.addConstraint(Sketcher.Constraint("Equal", 11, 13))
sketch12.addConstraint(Sketcher.Constraint("Equal", 13, 15))
sketch12.addConstraint(Sketcher.Constraint("Horizontal", 7, 3, 9, 3))
sketch12.addConstraint(Sketcher.Constraint("Horizontal", 5, 3, 11, 3))
sketch12.addConstraint(Sketcher.Constraint("Equal", 4, 8))
sketch12.addConstraint(Sketcher.Constraint("Radius", 1, Q("0.05 in")))
sketch12.addConstraint(Sketcher.Constraint("DistanceY", 2, 2, 2, 1, Q("0.2 in")))
sketch12.addConstraint(Sketcher.Constraint("DistanceX", -1, 1, 5, 3, Q("7 in")))
sketch12.addConstraint(Sketcher.Constraint("DistanceX", 0, 2, 0, 1, Q("0.65 in")))
sketch12.addConstraint(Sketcher.Constraint("DistanceX", -1, 1, 13, 3, Q("1.8 in")))
sketch12.addConstraint(Sketcher.Constraint("DistanceY", -1, 1, 1, 3, Q("0.94 in")))
pocket7 = body.newObject("PartDesign::Pocket", "Pocket006")
pocket7.Profile = sketch12
pocket7.Length = Q("1.56 in")

sketch13 = body.newObject("Sketcher::SketchObject", "Sketch012")
sketch13.AttachmentSupport = (doc.getObject("YZ_Plane"), [""])
sketch13.MapMode = "FlatFace"
sketch13.AttachmentOffset = App.Placement(App.Vector(0, 0, 10.1 * 25.4), App.Rotation())
sketch13.addGeometry(Part.LineSegment(App.Vector(38.1, -148.59, 0), App.Vector(38.1, -166.37, 0)), False)
sketch13.addGeometry(Part.ArcOfCircle(Part.Circle(App.Vector(36.83, -166.37, 0), App.Vector(0, 0, 1), 1.27), math.radians(-90), math.radians(0)), False)
sketch13.addGeometry(Part.LineSegment(App.Vector(36.83, -167.64, 0), App.Vector(20.32, -167.64, 0)), False)
sketch13.addGeometry(Part.ArcOfCircle(Part.Circle(App.Vector(20.32, -166.37, 0), App.Vector(0, 0, 1), 1.27), math.radians(180), math.radians(270)), False)
sketch13.addGeometry(Part.LineSegment(App.Vector(19.05, -166.37, 0), App.Vector(19.05, -148.59, 0)), False)
sketch13.addGeometry(Part.ArcOfCircle(Part.Circle(App.Vector(20.32, -148.59, 0), App.Vector(0, 0, 1), 1.27), math.radians(90), math.radians(180)), False)
sketch13.addGeometry(Part.LineSegment(App.Vector(20.32, -147.32, 0), App.Vector(36.83, -147.32, 0)), False)
sketch13.addGeometry(Part.ArcOfCircle(Part.Circle(App.Vector(36.83, -148.59, 0), App.Vector(0, 0, 1), 1.27), math.radians(0), math.radians(90)), False)
sketch13.addConstraint(Sketcher.Constraint("Tangent", 0, 2, 1, 2))
sketch13.addConstraint(Sketcher.Constraint("Tangent", 1, 1, 2, 1))
sketch13.addConstraint(Sketcher.Constraint("Tangent", 2, 2, 3, 2))
sketch13.addConstraint(Sketcher.Constraint("Tangent", 3, 1, 4, 1))
sketch13.addConstraint(Sketcher.Constraint("Tangent", 4, 2, 5, 2))
sketch13.addConstraint(Sketcher.Constraint("Tangent", 5, 1, 6, 1))
sketch13.addConstraint(Sketcher.Constraint("Tangent", 6, 2, 7, 2))
sketch13.addConstraint(Sketcher.Constraint("Tangent", 7, 1, 0, 1))
sketch13.addConstraint(Sketcher.Constraint("Vertical", 0))
sketch13.addConstraint(Sketcher.Constraint("Horizontal", 2))
sketch13.addConstraint(Sketcher.Constraint("Vertical", 4))
sketch13.addConstraint(Sketcher.Constraint("Horizontal", 6))
sketch13.addConstraint(Sketcher.Constraint("Equal", 1, 3))
sketch13.addConstraint(Sketcher.Constraint("Equal", 3, 5))
sketch13.addConstraint(Sketcher.Constraint("Equal", 5, 7))
sketch13.addConstraint(Sketcher.Constraint("Radius", 1, Q("0.05 in")))
sketch13.addConstraint(Sketcher.Constraint("DistanceY", 0, 2, 0, 1, Q("0.7 in")))
sketch13.addConstraint(Sketcher.Constraint("DistanceX", 2, 2, 2, 1, Q("0.65 in")))
sketch13.addConstraint(Sketcher.Constraint("DistanceX", -1, 1, 3, 3, Q("0.8 in")))
sketch13.addConstraint(Sketcher.Constraint("DistanceY", 1, 1, -1, 1, Q("6.6 in")))
pocket8 = body.newObject("PartDesign::Pocket", "Pocket007")
pocket8.Profile = sketch13
pocket8.Length = Q("1.56 in")
pocket8.Reversed = True
doc.recompute()

fillet = body.newObject("PartDesign::Fillet", "Fillet")
fillet.Base = (pocket8, edges_at(pocket8, [
    (0, 30.48, -203.2),
    (261.62, 30.48, -203.2),
    (261.62, 30.48, 0),
    (0, 30.48, 0),
]))
fillet.Radius = Q("0.1 in")

doc.recompute()
